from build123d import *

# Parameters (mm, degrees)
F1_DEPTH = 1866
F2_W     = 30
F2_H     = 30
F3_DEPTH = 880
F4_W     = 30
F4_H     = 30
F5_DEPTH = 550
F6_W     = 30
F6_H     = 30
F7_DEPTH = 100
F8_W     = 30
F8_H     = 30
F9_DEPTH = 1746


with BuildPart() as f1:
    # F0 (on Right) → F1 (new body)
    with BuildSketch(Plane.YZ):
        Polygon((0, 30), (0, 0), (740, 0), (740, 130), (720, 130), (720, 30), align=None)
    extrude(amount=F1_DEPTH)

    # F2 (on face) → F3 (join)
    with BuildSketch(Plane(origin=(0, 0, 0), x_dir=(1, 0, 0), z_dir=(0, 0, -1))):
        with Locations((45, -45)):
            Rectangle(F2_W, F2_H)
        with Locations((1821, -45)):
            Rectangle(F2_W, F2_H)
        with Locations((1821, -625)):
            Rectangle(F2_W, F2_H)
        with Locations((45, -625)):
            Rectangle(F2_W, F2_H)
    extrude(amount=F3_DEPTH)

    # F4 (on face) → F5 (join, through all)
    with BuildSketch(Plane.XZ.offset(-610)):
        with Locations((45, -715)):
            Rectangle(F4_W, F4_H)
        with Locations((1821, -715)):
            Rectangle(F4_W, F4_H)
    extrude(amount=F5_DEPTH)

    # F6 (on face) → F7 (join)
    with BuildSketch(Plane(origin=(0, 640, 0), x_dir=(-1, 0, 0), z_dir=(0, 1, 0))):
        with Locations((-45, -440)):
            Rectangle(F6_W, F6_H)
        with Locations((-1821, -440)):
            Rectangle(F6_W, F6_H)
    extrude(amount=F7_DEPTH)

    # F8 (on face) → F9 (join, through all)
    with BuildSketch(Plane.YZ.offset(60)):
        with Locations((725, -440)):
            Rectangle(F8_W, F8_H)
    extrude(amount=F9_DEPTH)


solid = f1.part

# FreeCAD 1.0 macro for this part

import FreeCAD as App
import Part
import Sketcher

V = App.Vector
Q = App.Units.Quantity

doc = App.newDocument("Part")
params = doc.addObject("Spreadsheet::Sheet", "Params")
for row, (alias, value) in enumerate([
    ("sketch1_width", "740 mm"),
    ("sketch1_width2", "20 mm"),
    ("sketch1_height", "30 mm"),
    ("sketch1_height2", "130 mm"),
    ("pad1_length", "1866 mm"),
    ("sketch2_width", "30 mm"),
    ("pad2_length", "880 mm"),
    ("sketch3_width", "30 mm"),
    ("pad3_length", "550 mm"),
    ("sketch4_width", "30 mm"),
    ("pad4_length", "100 mm"),
    ("sketch5_width", "30 mm"),
], start=1):
    params.set(f"A{row}", alias)
    params.set(f"B{row}", "=" + value)
    params.setAlias(f"B{row}", alias)

body = doc.addObject("PartDesign::Body", "Body")

sketch1 = doc.addObject("Sketcher::SketchObject", "Sketch")
body.addObject(sketch1)
sketch1.AttachmentSupport = (doc.YZ_Plane, [""])
sketch1.MapMode = "FlatFace"
sketch1.addGeometry([
    Part.LineSegment(V(0, 30, 0), V(0, 0, 0)),
    Part.LineSegment(V(0, 0, 0), V(740, 0, 0)),
    Part.LineSegment(V(740, 0, 0), V(740, 130, 0)),
    Part.LineSegment(V(740, 130, 0), V(720, 130, 0)),
    Part.LineSegment(V(720, 130, 0), V(720, 30, 0)),
    Part.LineSegment(V(720, 30, 0), V(0, 30, 0)),
], False)
sketch1.addConstraint([
    Sketcher.Constraint("Coincident", 0, 2, 1, 1),
    Sketcher.Constraint("Coincident", 1, 2, 2, 1),
    Sketcher.Constraint("Coincident", 2, 2, 3, 1),
    Sketcher.Constraint("Coincident", 3, 2, 4, 1),
    Sketcher.Constraint("Coincident", 4, 2, 5, 1),
    Sketcher.Constraint("Coincident", 5, 2, 0, 1),
    Sketcher.Constraint("Vertical", 0),
    Sketcher.Constraint("Horizontal", 1),
    Sketcher.Constraint("Vertical", 2),
    Sketcher.Constraint("Horizontal", 3),
    Sketcher.Constraint("Vertical", 4),
    Sketcher.Constraint("Horizontal", 5),
    Sketcher.Constraint("Coincident", 0, 2, -1, 1),
    Sketcher.Constraint("DistanceX", 1, 1, 1, 2, Q("740 mm")),
    Sketcher.Constraint("DistanceX", 3, 2, 3, 1, Q("20 mm")),
    Sketcher.Constraint("DistanceY", 0, 2, 0, 1, Q("30 mm")),
    Sketcher.Constraint("DistanceY", 2, 1, 2, 2, Q("130 mm")),
])
sketch1.setExpression("Constraints[13]", "Params.sketch1_width")
sketch1.setExpression("Constraints[14]", "Params.sketch1_width2")
sketch1.setExpression("Constraints[15]", "Params.sketch1_height")
sketch1.setExpression("Constraints[16]", "Params.sketch1_height2")
pad1 = doc.addObject("PartDesign::Pad", "Pad")
body.addObject(pad1)
pad1.Profile = sketch1
pad1.setExpression("Length", "Params.pad1_length")

sketch2 = doc.addObject("Sketcher::SketchObject", "Sketch001")
body.addObject(sketch2)
sketch2.AttachmentSupport = (doc.XY_Plane, [""])
sketch2.MapMode = "FlatFace"
sketch2.addGeometry([
    Part.LineSegment(V(30, 30, 0), V(30, 60, 0)),
    Part.LineSegment(V(30, 60, 0), V(60, 60, 0)),
    Part.LineSegment(V(60, 60, 0), V(60, 30, 0)),
    Part.LineSegment(V(60, 30, 0), V(30, 30, 0)),
    Part.LineSegment(V(1806, 30, 0), V(1806, 60, 0)),
    Part.LineSegment(V(1806, 60, 0), V(1836, 60, 0)),
    Part.LineSegment(V(1836, 60, 0), V(1836, 30, 0)),
    Part.LineSegment(V(1836, 30, 0), V(1806, 30, 0)),
    Part.LineSegment(V(1806, 610, 0), V(1806, 640, 0)),
    Part.LineSegment(V(1806, 640, 0), V(1836, 640, 0)),
    Part.LineSegment(V(1836, 640, 0), V(1836, 610, 0)),
    Part.LineSegment(V(1836, 610, 0), V(1806, 610, 0)),
    Part.LineSegment(V(30, 610, 0), V(30, 640, 0)),
    Part.LineSegment(V(30, 640, 0), V(60, 640, 0)),
    Part.LineSegment(V(60, 640, 0), V(60, 610, 0)),
    Part.LineSegment(V(60, 610, 0), V(30, 610, 0)),
], False)
sketch2.addConstraint([
    Sketcher.Constraint("Coincident", 0, 2, 1, 1),
    Sketcher.Constraint("Coincident", 1, 2, 2, 1),
    Sketcher.Constraint("Coincident", 2, 2, 3, 1),
    Sketcher.Constraint("Coincident", 3, 2, 0, 1),
    Sketcher.Constraint("Coincident", 4, 2, 5, 1),
    Sketcher.Constraint("Coincident", 5, 2, 6, 1),
    Sketcher.Constraint("Coincident", 6, 2, 7, 1),
    Sketcher.Constraint("Coincident", 7, 2, 4, 1),
    Sketcher.Constraint("Coincident", 8, 2, 9, 1),
    Sketcher.Constraint("Coincident", 9, 2, 10, 1),
    Sketcher.Constraint("Coincident", 10, 2, 11, 1),
    Sketcher.Constraint("Coincident", 11, 2, 8, 1),
    Sketcher.Constraint("Coincident", 12, 2, 13, 1),
    Sketcher.Constraint("Coincident", 13, 2, 14, 1),
    Sketcher.Constraint("Coincident", 14, 2, 15, 1),
    Sketcher.Constraint("Coincident", 15, 2, 12, 1),
    Sketcher.Constraint("Vertical", 0),
    Sketcher.Constraint("Horizontal", 1),
    Sketcher.Constraint("Vertical", 2),
    Sketcher.Constraint("Horizontal", 3),
    Sketcher.Constraint("Vertical", 4),
    Sketcher.Constraint("Horizontal", 5),
    Sketcher.Constraint("Vertical", 6),
    Sketcher.Constraint("Horizontal", 7),
    Sketcher.Constraint("Vertical", 8),
    Sketcher.Constraint("Horizontal", 9),
    Sketcher.Constraint("Vertical", 10),
    Sketcher.Constraint("Horizontal", 11),
    Sketcher.Constraint("Vertical", 12),
    Sketcher.Constraint("Horizontal", 13),
    Sketcher.Constraint("Vertical", 14),
    Sketcher.Constraint("Horizontal", 15),
    Sketcher.Constraint("Horizontal", 1, 2, 4, 2),
    Sketcher.Constraint("Horizontal", 3, 2, 6, 2),
    Sketcher.Constraint("Horizontal", 9, 2, 12, 2),
    Sketcher.Constraint("Horizontal", 11, 2, 14, 2),
    Sketcher.Constraint("Vertical", 7, 2, 8, 2),
    Sketcher.Constraint("Vertical", 6, 2, 9, 2),
    Sketcher.Constraint("Vertical", 3, 2, 12, 2),
    Sketcher.Constraint("Vertical", 2, 2, 13, 2),
    Sketcher.Constraint("Equal", 3, 5),
    Sketcher.Constraint("Equal", 15, 0),
    Sketcher.Constraint("Equal", 6, 8),
    Sketcher.Constraint("DistanceX", 1, 1, 1, 2, Q("30 mm")),
    Sketcher.Constraint("DistanceX", -1, 1, 0, 2, Q("30 mm")),
    Sketcher.Constraint("DistanceY", -1, 1, 0, 2, Q("60 mm")),
    Sketcher.Constraint("DistanceX", -1, 1, 4, 2, Q("1806 mm")),
    Sketcher.Constraint("DistanceY", -1, 1, 8, 2, Q("640 mm")),
])
sketch2.setExpression("Constraints[43]", "Params.sketch2_width")
pad2 = doc.addObject("PartDesign::Pad", "Pad001")
body.addObject(pad2)
pad2.Profile = sketch2
pad2.setExpression("Length", "Params.pad2_length")
pad2.Reversed = True

sketch3 = doc.addObject("Sketcher::SketchObject", "Sketch002")
body.addObject(sketch3)
sketch3.AttachmentSupport = (doc.XZ_Plane, [""])
sketch3.MapMode = "FlatFace"
sketch3.AttachmentOffset = App.Placement(V(0, 0, -610), App.Rotation())
sketch3.addGeometry([
    Part.LineSegment(V(30, -700, 0), V(30, -730, 0)),
    Part.LineSegment(V(30, -730, 0), V(60, -730, 0)),
    Part.LineSegment(V(60, -730, 0), V(60, -700, 0)),
    Part.LineSegment(V(60, -700, 0), V(30, -700, 0)),
    Part.LineSegment(V(1806, -700, 0), V(1806, -730, 0)),
    Part.LineSegment(V(1806, -730, 0), V(1836, -730, 0)),
    Part.LineSegment(V(1836, -730, 0), V(1836, -700, 0)),
    Part.LineSegment(V(1836, -700, 0), V(1806, -700, 0)),
], False)
sketch3.addConstraint([
    Sketcher.Constraint("Coincident", 0, 2, 1, 1),
    Sketcher.Constraint("Coincident", 1, 2, 2, 1),
    Sketcher.Constraint("Coincident", 2, 2, 3, 1),
    Sketcher.Constraint("Coincident", 3, 2, 0, 1),
    Sketcher.Constraint("Coincident", 4, 2, 5, 1),
    Sketcher.Constraint("Coincident", 5, 2, 6, 1),
    Sketcher.Constraint("Coincident", 6, 2, 7, 1),
    Sketcher.Constraint("Coincident", 7, 2, 4, 1),
    Sketcher.Constraint("Vertical", 0),
    Sketcher.Constraint("Horizontal", 1),
    Sketcher.Constraint("Vertical", 2),
    Sketcher.Constraint("Horizontal", 3),
    Sketcher.Constraint("Vertical", 4),
    Sketcher.Constraint("Horizontal", 5),
    Sketcher.Constraint("Vertical", 6),
    Sketcher.Constraint("Horizontal", 7),
    Sketcher.Constraint("Horizontal", 1, 2, 4, 2),
    Sketcher.Constraint("Horizontal", 3, 2, 6, 2),
    Sketcher.Constraint("Equal", 3, 5),
    Sketcher.Constraint("Equal", 7, 0),
    Sketcher.Constraint("DistanceX", 1, 1, 1, 2, Q("30 mm")),
    Sketcher.Constraint("DistanceX", -1, 1, 0, 2, Q("30 mm")),
    Sketcher.Constraint("DistanceY", 0, 2, -1, 1, Q("730 mm")),
    Sketcher.Constraint("DistanceX", -1, 1, 4, 2, Q("1806 mm")),
])
sketch3.setExpression("Constraints[20]", "Params.sketch3_width")
pad3 = doc.addObject("PartDesign::Pad", "Pad002")
body.addObject(pad3)
pad3.Profile = sketch3
pad3.setExpression("Length", "Params.pad3_length")

sketch4 = doc.addObject("Sketcher::SketchObject", "Sketch003")
body.addObject(sketch4)
sketch4.AttachmentSupport = (doc.XZ_Plane, [""])
sketch4.MapMode = "FlatFace"
sketch4.AttachmentOffset = App.Placement(V(0, 0, -640), App.Rotation())
sketch4.addGeometry([
    Part.LineSegment(V(60, -425, 0), V(60, -455, 0)),
    Part.LineSegment(V(60, -455, 0), V(30, -455, 0)),
    Part.LineSegment(V(30, -455, 0), V(30, -425, 0)),
    Part.LineSegment(V(30, -425, 0), V(60, -425, 0)),
    Part.LineSegment(V(1836, -425, 0), V(1836, -455, 0)),
    Part.LineSegment(V(1836, -455, 0), V(1806, -455, 0)),
    Part.LineSegment(V(1806, -455, 0), V(1806, -425, 0)),
    Part.LineSegment(V(1806, -425, 0), V(1836, -425, 0)),
], False)
sketch4.addConstraint([
    Sketcher.Constraint("Coincident", 0, 2, 1, 1),
    Sketcher.Constraint("Coincident", 1, 2, 2, 1),
    Sketcher.Constraint("Coincident", 2, 2, 3, 1),
    Sketcher.Constraint("Coincident", 3, 2, 0, 1),
    Sketcher.Constraint("Coincident", 4, 2, 5, 1),
    Sketcher.Constraint("Coincident", 5, 2, 6, 1),
    Sketcher.Constraint("Coincident", 6, 2, 7, 1),
    Sketcher.Constraint("Coincident", 7, 2, 4, 1),
    Sketcher.Constraint("Vertical", 0),
    Sketcher.Constraint("Horizontal", 1),
    Sketcher.Constraint("Vertical", 2),
    Sketcher.Constraint("Horizontal", 3),
    Sketcher.Constraint("Vertical", 4),
    Sketcher.Constraint("Horizontal", 5),
    Sketcher.Constraint("Vertical", 6),
    Sketcher.Constraint("Horizontal", 7),
    Sketcher.Constraint("Horizontal", 1, 2, 4, 2),
    Sketcher.Constraint("Horizontal", 3, 2, 6, 2),
    Sketcher.Constraint("Equal", 3, 5),
    Sketcher.Constraint("Equal", 7, 0),
    Sketcher.Constraint("DistanceX", 1, 2, 1, 1, Q("30 mm")),
    Sketcher.Constraint("DistanceX", -1, 1, 0, 2, Q("60 mm")),
    Sketcher.Constraint("DistanceY", 0, 2, -1, 1, Q("455 mm")),
    Sketcher.Constraint("DistanceX", -1, 1, 4, 2, Q("1836 mm")),
])
sketch4.setExpression("Constraints[20]", "Params.sketch4_width")
pad4 = doc.addObject("PartDesign::Pad", "Pad003")
body.addObject(pad4)
pad4.Profile = sketch4
pad4.setExpression("Length", "Params.pad4_length")
pad4.Reversed = True

sketch5 = doc.addObject("Sketcher::SketchObject", "Sketch004")
body.addObject(sketch5)
sketch5.AttachmentSupport = (doc.YZ_Plane, [""])
sketch5.MapMode = "FlatFace"
sketch5.AttachmentOffset = App.Placement(V(0, 0, 60), App.Rotation())
sketch5.addGeometry([
    Part.LineSegment(V(710, -425, 0), V(710, -455, 0)),
    Part.LineSegment(V(710, -455, 0), V(740, -455, 0)),
    Part.LineSegment(V(740, -455, 0), V(740, -425, 0)),
    Part.LineSegment(V(740, -425, 0), V(710, -425, 0)),
], False)
sketch5.addConstraint([
    Sketcher.Constraint("Coincident", 0, 2, 1, 1),
    Sketcher.Constraint("Coincident", 1, 2, 2, 1),
    Sketcher.Constraint("Coincident", 2, 2, 3, 1),
    Sketcher.Constraint("Coincident", 3, 2, 0, 1),
    Sketcher.Constraint("Vertical", 0),
    Sketcher.Constraint("Horizontal", 1),
    Sketcher.Constraint("Vertical", 2),
    Sketcher.Constraint("Horizontal", 3),
    Sketcher.Constraint("Equal", 3, 0),
    Sketcher.Constraint("DistanceX", 1, 1, 1, 2, Q("30 mm")),
    Sketcher.Constraint("DistanceX", -1, 1, 0, 2, Q("710 mm")),
    Sketcher.Constraint("DistanceY", 0, 2, -1, 1, Q("455 mm")),
])
sketch5.setExpression("Constraints[9]", "Params.sketch5_width")
pad5 = doc.addObject("PartDesign::Pad", "Pad004")
body.addObject(pad5)
pad5.Profile = sketch5
pad5.Type = "UpToLast"

doc.recompute()
